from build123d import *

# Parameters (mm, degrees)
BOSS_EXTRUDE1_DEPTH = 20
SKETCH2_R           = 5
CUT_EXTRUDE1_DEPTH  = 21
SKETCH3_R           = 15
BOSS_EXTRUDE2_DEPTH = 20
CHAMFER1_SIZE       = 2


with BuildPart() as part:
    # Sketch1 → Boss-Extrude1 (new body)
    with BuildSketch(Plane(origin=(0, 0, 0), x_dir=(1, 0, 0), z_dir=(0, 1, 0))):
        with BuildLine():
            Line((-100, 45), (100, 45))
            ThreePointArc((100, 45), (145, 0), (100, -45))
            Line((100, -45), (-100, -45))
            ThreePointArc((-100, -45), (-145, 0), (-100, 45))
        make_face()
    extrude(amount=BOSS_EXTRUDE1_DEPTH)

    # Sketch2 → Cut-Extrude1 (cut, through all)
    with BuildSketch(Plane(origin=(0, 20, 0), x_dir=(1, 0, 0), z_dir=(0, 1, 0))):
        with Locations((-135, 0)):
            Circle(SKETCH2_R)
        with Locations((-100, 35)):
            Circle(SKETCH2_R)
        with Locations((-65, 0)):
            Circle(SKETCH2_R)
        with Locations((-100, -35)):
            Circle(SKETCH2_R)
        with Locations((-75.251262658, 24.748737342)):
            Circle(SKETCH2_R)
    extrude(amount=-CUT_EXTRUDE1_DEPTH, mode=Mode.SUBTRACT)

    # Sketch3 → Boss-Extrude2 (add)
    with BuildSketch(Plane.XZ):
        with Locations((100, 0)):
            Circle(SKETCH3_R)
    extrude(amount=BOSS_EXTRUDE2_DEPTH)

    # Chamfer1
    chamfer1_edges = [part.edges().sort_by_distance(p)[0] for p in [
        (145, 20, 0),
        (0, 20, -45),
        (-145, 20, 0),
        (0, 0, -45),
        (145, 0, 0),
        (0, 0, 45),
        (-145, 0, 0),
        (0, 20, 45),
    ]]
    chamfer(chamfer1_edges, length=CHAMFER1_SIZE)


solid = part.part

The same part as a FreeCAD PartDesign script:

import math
import FreeCAD as App
import Part
import Sketcher
from FreeCAD import Vector


def edges_at(feature, points):
    """Names of the edges that pass closest to the given points."""
    edges = feature.Shape.Edges
    near = lambda p: min(range(len(edges)), key=lambda i: edges[i].distToShape(Part.Vertex(*p))[0])
    return sorted({f"Edge{near(p) + 1}" for p in points})

doc = App.newDocument("Part")
body = doc.addObject("PartDesign::Body", "Body")

sketch1 = body.newObject("Sketcher::SketchObject", "Sketch")
sketch1.AttachmentSupport = (doc.getObject("XZ_Plane"), [""])
sketch1.MapMode = "FlatFace"
sketch1.addGeometry(Part.LineSegment(Vector(100, -45, 0), Vector(-100, -45, 0)), False)
sketch1.addGeometry(Part.ArcOfCircle(Part.Circle(Vector(-100, 0, 0), Vector(0, 0, 1), 45), math.radians(90), math.radians(270)), False)
sketch1.addGeometry(Part.LineSegment(Vector(-100, 45, 0), Vector(100, 45, 0)), False)
sketch1.addGeometry(Part.ArcOfCircle(Part.Circle(Vector(100, 0, 0), Vector(0, 0, 1), 45), math.radians(-90), math.radians(90)), False)
sketch1.addConstraint(Sketcher.Constraint("Tangent", 0, 2, 1, 2))
sketch1.addConstraint(Sketcher.Constraint("Tangent", 1, 1, 2, 1))
sketch1.addConstraint(Sketcher.Constraint("Tangent", 2, 2, 3, 2))
sketch1.addConstraint(Sketcher.Constraint("Tangent", 3, 1, 0, 1))
sketch1.addConstraint(Sketcher.Constraint("Horizontal", 0))
sketch1.addConstraint(Sketcher.Constraint("Horizontal", 2))
sketch1.addConstraint(Sketcher.Constraint("Symmetric", 1, 3, 3, 3, -1, 1))
sketch1.addConstraint(Sketcher.Constraint("Radius", 1, 45.0))
sketch1.addConstraint(Sketcher.Constraint("DistanceX", 0, 2, 0, 1, 200.0))
pad1 = body.newObject("PartDesign::Pad", "Pad")
pad1.Profile = sketch1
pad1.Length = 20
pad1.Reversed = True

sketch2 = body.newObject("Sketcher::SketchObject", "Sketch001")
sketch2.AttachmentSupport = (doc.getObject("XZ_Plane"), [""])
sketch2.MapMode = "FlatFace"
sketch2.AttachmentOffset = App.Placement(Vector(0, 0, -20), App.Rotation())
sketch2.addGeometry(Part.Circle(Vector(-135, 0, 0), Vector(0, 0, 1), 5), False)
sketch2.addGeometry(Part.Circle(Vector(-100, -35, 0), Vector(0, 0, 1), 5), False)
sketch2.addGeometry(Part.Circle(Vector(-65, 0, 0), Vector(0, 0, 1), 5), False)
sketch2.addGeometry(Part.Circle(Vector(-100, 35, 0), Vector(0, 0, 1), 5), False)
sketch2.addGeometry(Part.Circle(Vector(-75, -25, 0), Vector(0, 0, 1), 5), False)
sketch2.addConstraint(Sketcher.Constraint("Equal", 0, 1))
sketch2.addConstraint(Sketcher.Constraint("Equal", 1, 2))
sketch2.addConstraint(Sketcher.Constraint("Equal", 2, 3))
sketch2.addConstraint(Sketcher.Constraint("Equal", 3, 4))
sketch2.addConstraint(Sketcher.Constraint("Symmetric", 1, 3, 3, 3, -1))
sketch2.addConstraint(Sketcher.Constraint("PointOnObject", 0, 3, -1))
sketch2.addConstraint(Sketcher.Constraint("PointOnObject", 2, 3, -1))
sketch2.addConstraint(Sketcher.Constraint("Diameter", 0, 10.0))
sketch2.addConstraint(Sketcher.Constraint("DistanceX", 0, 3, -1, 1, 135.0))
sketch2.addConstraint(Sketcher.Constraint("DistanceX", 1, 3, -1, 1, 100.0))
sketch2.addConstraint(Sketcher.Constraint("DistanceY", 1, 3, -1, 1, 35.0))
sketch2.addConstraint(Sketcher.Constraint("DistanceX", 2, 3, -1, 1, 65.0))
sketch2.addConstraint(Sketcher.Constraint("DistanceX", 4, 3, -1, 1, 75.251263))
sketch2.addConstraint(Sketcher.Constraint("DistanceY", 4, 3, -1, 1, 24.748737))
pocket1 = body.newObject("PartDesign::Pocket", "Pocket")
pocket1.Profile = sketch2
pocket1.Type = "ThroughAll"
pocket1.Reversed = True

sketch3 = body.newObject("Sketcher::SketchObject", "Sketch002")
sketch3.AttachmentSupport = (doc.getObject("XZ_Plane"), [""])
sketch3.MapMode = "FlatFace"
sketch3.addGeometry(Part.Circle(Vector(100, 0, 0), Vector(0, 0, 1), 15), False)
sketch3.addConstraint(Sketcher.Constraint("PointOnObject", 0, 3, -1))
sketch3.addConstraint(Sketcher.Constraint("Diameter", 0, 30.0))
sketch3.addConstraint(Sketcher.Constraint("DistanceX", -1, 1, 0, 3, 100.0))
pad2 = body.newObject("PartDesign::Pad", "Pad001")
pad2.Profile = sketch3
pad2.Length = 20
doc.recompute()

chamfer = body.newObject("PartDesign::Chamfer", "Chamfer")
chamfer.Base = (pad2, edges_at(pad2, [
    (145, 20, 0),
    (0, 20, -45),
    (-145, 20, 0),
    (0, 0, -45),
    (145, 0, 0),
    (0, 0, 45),
    (-145, 0, 0),
    (0, 20, 45),
]))
chamfer.Size = 2

doc.recompute()
